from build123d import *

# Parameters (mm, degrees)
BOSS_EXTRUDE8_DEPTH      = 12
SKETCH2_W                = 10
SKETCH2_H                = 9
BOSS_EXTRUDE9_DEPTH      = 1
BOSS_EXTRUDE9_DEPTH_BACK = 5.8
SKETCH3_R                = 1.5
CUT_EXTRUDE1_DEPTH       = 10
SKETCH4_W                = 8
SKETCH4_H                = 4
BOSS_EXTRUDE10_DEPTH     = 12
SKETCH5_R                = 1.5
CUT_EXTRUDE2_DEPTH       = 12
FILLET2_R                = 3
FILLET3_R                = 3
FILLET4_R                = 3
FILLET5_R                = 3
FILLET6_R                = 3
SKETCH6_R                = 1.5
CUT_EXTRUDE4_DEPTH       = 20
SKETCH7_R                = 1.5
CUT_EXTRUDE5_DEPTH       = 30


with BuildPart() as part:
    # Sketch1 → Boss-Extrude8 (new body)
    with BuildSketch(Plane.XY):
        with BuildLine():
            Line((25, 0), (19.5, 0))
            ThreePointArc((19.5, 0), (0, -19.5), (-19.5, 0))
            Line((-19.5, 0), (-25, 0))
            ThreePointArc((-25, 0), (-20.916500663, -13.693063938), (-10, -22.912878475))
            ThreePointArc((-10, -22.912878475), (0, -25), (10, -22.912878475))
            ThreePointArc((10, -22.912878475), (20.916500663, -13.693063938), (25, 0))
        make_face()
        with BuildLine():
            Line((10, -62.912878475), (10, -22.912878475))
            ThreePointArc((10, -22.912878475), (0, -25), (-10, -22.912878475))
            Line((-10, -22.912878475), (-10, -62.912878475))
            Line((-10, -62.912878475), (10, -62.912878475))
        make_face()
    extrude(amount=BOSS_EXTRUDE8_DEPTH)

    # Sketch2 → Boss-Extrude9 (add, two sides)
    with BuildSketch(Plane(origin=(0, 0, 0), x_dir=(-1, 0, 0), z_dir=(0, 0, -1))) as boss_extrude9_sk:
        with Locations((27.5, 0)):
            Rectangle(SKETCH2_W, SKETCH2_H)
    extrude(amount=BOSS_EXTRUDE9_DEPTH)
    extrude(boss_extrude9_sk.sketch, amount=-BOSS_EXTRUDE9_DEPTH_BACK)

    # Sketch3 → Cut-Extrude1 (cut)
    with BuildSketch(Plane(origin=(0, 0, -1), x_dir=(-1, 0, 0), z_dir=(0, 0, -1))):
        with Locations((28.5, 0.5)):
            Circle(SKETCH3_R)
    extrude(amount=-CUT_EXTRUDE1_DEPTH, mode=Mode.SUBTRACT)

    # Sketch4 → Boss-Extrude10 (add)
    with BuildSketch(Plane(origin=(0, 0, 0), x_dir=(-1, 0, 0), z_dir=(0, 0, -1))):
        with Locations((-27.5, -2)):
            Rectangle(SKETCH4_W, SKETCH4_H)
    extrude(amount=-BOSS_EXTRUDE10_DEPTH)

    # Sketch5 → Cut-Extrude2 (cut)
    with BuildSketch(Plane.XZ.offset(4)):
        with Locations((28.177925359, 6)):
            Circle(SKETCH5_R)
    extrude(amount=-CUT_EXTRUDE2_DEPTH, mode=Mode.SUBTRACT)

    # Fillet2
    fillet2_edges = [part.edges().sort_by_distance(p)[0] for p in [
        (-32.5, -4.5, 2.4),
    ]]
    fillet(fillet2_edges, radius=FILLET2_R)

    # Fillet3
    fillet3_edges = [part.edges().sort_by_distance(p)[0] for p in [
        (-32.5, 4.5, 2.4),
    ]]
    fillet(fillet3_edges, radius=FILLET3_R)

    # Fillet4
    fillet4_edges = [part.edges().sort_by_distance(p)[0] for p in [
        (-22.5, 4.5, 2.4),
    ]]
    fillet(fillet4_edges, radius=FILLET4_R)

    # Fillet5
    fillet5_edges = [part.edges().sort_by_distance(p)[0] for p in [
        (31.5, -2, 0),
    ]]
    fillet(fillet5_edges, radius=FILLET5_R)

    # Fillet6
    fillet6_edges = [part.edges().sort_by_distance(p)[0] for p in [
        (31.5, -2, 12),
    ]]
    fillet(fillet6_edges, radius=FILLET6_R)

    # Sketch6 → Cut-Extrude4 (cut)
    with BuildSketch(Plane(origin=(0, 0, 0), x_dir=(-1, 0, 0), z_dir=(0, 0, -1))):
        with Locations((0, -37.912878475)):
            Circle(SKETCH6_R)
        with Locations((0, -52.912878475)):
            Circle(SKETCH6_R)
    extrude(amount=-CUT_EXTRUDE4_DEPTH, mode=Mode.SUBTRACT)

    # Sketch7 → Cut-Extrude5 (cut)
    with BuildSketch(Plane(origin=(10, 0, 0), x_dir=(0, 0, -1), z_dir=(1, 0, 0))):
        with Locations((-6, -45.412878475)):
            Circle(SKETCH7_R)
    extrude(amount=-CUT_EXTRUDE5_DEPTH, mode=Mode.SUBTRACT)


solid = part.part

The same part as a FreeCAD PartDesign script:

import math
import FreeCAD as App
import Part
import Sketcher
Q = App.Units.Quantity


def edges_at(feature, points):
    """Names of the edges that pass closest to the given points."""
    edges = feature.Shape.Edges
    near = lambda p: min(range(len(edges)), key=lambda i: edges[i].distToShape(Part.Vertex(*p))[0])
    return sorted({f"Edge{near(p) + 1}" for p in points})

doc = App.newDocument("Part")
body = doc.addObject("PartDesign::Body", "Body")

sketch1 = doc.addObject("Sketcher::SketchObject", "Sketch")
body.addObject(sketch1)
sketch1.AttachmentSupport = (doc.XY_Plane, [""])
sketch1.MapMode = "FlatFace"
sketch1.addGeometry([
    Part.LineSegment(App.Vector(25, 0, 0), App.Vector(20, 0, 0)),
    Part.ArcOfCircle(Part.Circle(App.Vector(0, 0, 0), App.Vector(0, 0, 1), 20), math.radians(180), math.radians(360)),
    Part.LineSegment(App.Vector(-20, 0, 0), App.Vector(-25, 0, 0)),
    Part.ArcOfCircle(Part.Circle(App.Vector(0, 0, 0), App.Vector(0, 0, 1), 25), math.radians(180), math.radians(246)),
    Part.LineSegment(App.Vector(-10, -23, 0), App.Vector(-10, -63, 0)),
    Part.LineSegment(App.Vector(-10, -63, 0), App.Vector(10, -63, 0)),
    Part.LineSegment(App.Vector(10, -63, 0), App.Vector(10, -23, 0)),
    Part.ArcOfCircle(Part.Circle(App.Vector(0, 0, 0), App.Vector(0, 0, 1), 25), math.radians(-66), math.radians(0)),
], False)
sketch1.addConstraint([
    Sketcher.Constraint("Coincident", 0, 2, 1, 2),
    Sketcher.Constraint("Coincident", 1, 1, 2, 1),
    Sketcher.Constraint("Coincident", 2, 2, 3, 1),
    Sketcher.Constraint("Coincident", 3, 2, 4, 1),
    Sketcher.Constraint("Coincident", 4, 2, 5, 1),
    Sketcher.Constraint("Coincident", 5, 2, 6, 1),
    Sketcher.Constraint("Coincident", 6, 2, 7, 1),
    Sketcher.Constraint("Coincident", 7, 2, 0, 1),
    Sketcher.Constraint("Horizontal", 0),
    Sketcher.Constraint("Horizontal", 2),
    Sketcher.Constraint("Vertical", 4),
    Sketcher.Constraint("Horizontal", 5),
    Sketcher.Constraint("Vertical", 6),
    Sketcher.Constraint("Coincident", 1, 3, -1, 1),
    Sketcher.Constraint("Coincident", 3, 3, -1, 1),
    Sketcher.Constraint("Coincident", 7, 3, -1, 1),
    Sketcher.Constraint("Equal", 3, 7),
    Sketcher.Constraint("PointOnObject", 0, 2, -1),
    Sketcher.Constraint("PointOnObject", 1, 1, -1),
    Sketcher.Constraint("Horizontal", 3, 2, 6, 2),
    Sketcher.Constraint("Radius", 3, Q("25 mm")),
    Sketcher.Constraint("Radius", 1, Q("19.5 mm")),
    Sketcher.Constraint("DistanceX", 5, 1, 5, 2, Q("20 mm")),
    Sketcher.Constraint("DistanceY", 4, 2, 4, 1, Q("40 mm")),
])
pad1 = doc.addObject("PartDesign::Pad", "Pad")
body.addObject(pad1)
pad1.Profile = sketch1
pad1.Length = 12

sketch2 = doc.addObject("Sketcher::SketchObject", "Sketch001")
body.addObject(sketch2)
sketch2.AttachmentSupport = (doc.XY_Plane, [""])
sketch2.MapMode = "FlatFace"
sketch2.addGeometry([
    Part.LineSegment(App.Vector(-22, 4, 0), App.Vector(-22, -4, 0)),
    Part.LineSegment(App.Vector(-22, -4, 0), App.Vector(-32, -4, 0)),
    Part.LineSegment(App.Vector(-32, -4, 0), App.Vector(-32, 4, 0)),
    Part.LineSegment(App.Vector(-32, 4, 0), App.Vector(-22, 4, 0)),
], False)
sketch2.addConstraint([
    Sketcher.Constraint("Coincident", 0, 2, 1, 1),
    Sketcher.Constraint("Coincident", 1, 2, 2, 1),
    Sketcher.Constraint("Coincident", 2, 2, 3, 1),
    Sketcher.Constraint("Coincident", 3, 2, 0, 1),
    Sketcher.Constraint("Vertical", 0),
    Sketcher.Constraint("Horizontal", 1),
    Sketcher.Constraint("Vertical", 2),
    Sketcher.Constraint("Horizontal", 3),
    Sketcher.Constraint("DistanceX", 1, 2, 1, 1, Q("10 mm")),
    Sketcher.Constraint("DistanceY", 0, 2, 0, 1, Q("9 mm")),
    Sketcher.Constraint("DistanceX", 0, 2, -1, 1, Q("22.5 mm")),
    Sketcher.Constraint("DistanceY", 0, 2, -1, 1, Q("4.5 mm")),
])
pad2 = doc.addObject("PartDesign::Pad", "Pad001")
body.addObject(pad2)
pad2.Profile = sketch2
pad2.Type = "TwoLengths"
pad2.Length = 1
pad2.Length2 = 5.8
pad2.Reversed = True

sketch3 = doc.addObject("Sketcher::SketchObject", "Sketch002")
body.addObject(sketch3)
sketch3.AttachmentSupport = (doc.XY_Plane, [""])
sketch3.MapMode = "FlatFace"
sketch3.AttachmentOffset = App.Placement(App.Vector(0, 0, -1), App.Rotation())
sketch3.addGeometry(Part.Circle(App.Vector(-28.5, 0.5, 0), App.Vector(0, 0, 1), 1.5), False)
sketch3.addConstraint([
    Sketcher.Constraint("Diameter", 0, Q("3 mm")),
    Sketcher.Constraint("DistanceX", 0, 3, -1, 1, Q("28.5 mm")),
    Sketcher.Constraint("DistanceY", -1, 1, 0, 3, Q("0.5 mm")),
])
pocket1 = doc.addObject("PartDesign::Pocket", "Pocket")
body.addObject(pocket1)
pocket1.Profile = sketch3
pocket1.Length = 10
pocket1.Reversed = True

sketch4 = doc.addObject("Sketcher::SketchObject", "Sketch003")
body.addObject(sketch4)
sketch4.AttachmentSupport = (doc.XY_Plane, [""])
sketch4.MapMode = "FlatFace"
sketch4.addGeometry([
    Part.LineSegment(App.Vector(31.5, 0, 0), App.Vector(31.5, -4, 0)),
    Part.LineSegment(App.Vector(31.5, -4, 0), App.Vector(23.5, -4, 0)),
    Part.LineSegment(App.Vector(23.5, -4, 0), App.Vector(23.5, 0, 0)),
    Part.LineSegment(App.Vector(23.5, 0, 0), App.Vector(31.5, 0, 0)),
], False)
sketch4.addConstraint([
    Sketcher.Constraint("Coincident", 0, 2, 1, 1),
    Sketcher.Constraint("Coincident", 1, 2, 2, 1),
    Sketcher.Constraint("Coincident", 2, 2, 3, 1),
    Sketcher.Constraint("Coincident", 3, 2, 0, 1),
    Sketcher.Constraint("Vertical", 0),
    Sketcher.Constraint("Horizontal", 1),
    Sketcher.Constraint("Vertical", 2),
    Sketcher.Constraint("Horizontal", 3),
    Sketcher.Constraint("PointOnObject", 2, 2, -1),
    Sketcher.Constraint("DistanceX", 1, 2, 1, 1, Q("8 mm")),
    Sketcher.Constraint("DistanceY", 0, 2, 0, 1, Q("4 mm")),
    Sketcher.Constraint("DistanceX", -1, 1, 0, 2, Q("31.5 mm")),
])
pad3 = doc.addObject("PartDesign::Pad", "Pad002")
body.addObject(pad3)
pad3.Profile = sketch4
pad3.Length = 12

sketch5 = doc.addObject("Sketcher::SketchObject", "Sketch004")
body.addObject(sketch5)
sketch5.AttachmentSupport = (doc.XZ_Plane, [""])
sketch5.MapMode = "FlatFace"
sketch5.AttachmentOffset = App.Placement(App.Vector(0, 0, 4), App.Rotation())
sketch5.addGeometry(Part.Circle(App.Vector(28.2, 6, 0), App.Vector(0, 0, 1), 1.5), False)
sketch5.addConstraint([
    Sketcher.Constraint("Diameter", 0, Q("3 mm")),
    Sketcher.Constraint("DistanceY", -1, 1, 0, 3, Q("6 mm")),
    Sketcher.Constraint("DistanceX", -1, 1, 0, 3, Q("28.177925 mm")),
])
pocket2 = doc.addObject("PartDesign::Pocket", "Pocket001")
body.addObject(pocket2)
pocket2.Profile = sketch5
pocket2.Length = 12
doc.recompute()

fillet = doc.addObject("PartDesign::Fillet", "Fillet")
body.addObject(fillet)
fillet.Base = (pocket2, edges_at(pocket2, [(-32.5, -4.5, 2.4)]))
fillet.Radius = 3
doc.recompute()

fillet2 = doc.addObject("PartDesign::Fillet", "Fillet001")
body.addObject(fillet2)
fillet2.Base = (fillet, edges_at(fillet, [(-32.5, 4.5, 2.4)]))
fillet2.Radius = 3
doc.recompute()

fillet3 = doc.addObject("PartDesign::Fillet", "Fillet002")
body.addObject(fillet3)
fillet3.Base = (fillet2, edges_at(fillet2, [(-22.5, 4.5, 2.4)]))
fillet3.Radius = 3
doc.recompute()

fillet4 = doc.addObject("PartDesign::Fillet", "Fillet003")
body.addObject(fillet4)
fillet4.Base = (fillet3, edges_at(fillet3, [(31.5, -2, 0)]))
fillet4.Radius = 3
doc.recompute()

fillet5 = doc.addObject("PartDesign::Fillet", "Fillet004")
body.addObject(fillet5)
fillet5.Base = (fillet4, edges_at(fillet4, [(31.5, -2, 12)]))
fillet5.Radius = 3

sketch6 = doc.addObject("Sketcher::SketchObject", "Sketch005")
body.addObject(sketch6)
sketch6.AttachmentSupport = (doc.XY_Plane, [""])
sketch6.MapMode = "FlatFace"
sketch6.addGeometry([
    Part.Circle(App.Vector(0, -37.9, 0), App.Vector(0, 0, 1), 1.5),
    Part.Circle(App.Vector(0, -52.9, 0), App.Vector(0, 0, 1), 1.5),
], False)
sketch6.addConstraint([
    Sketcher.Constraint("Equal", 0, 1),
    Sketcher.Constraint("PointOnObject", 0, 3, -2),
    Sketcher.Constraint("PointOnObject", 1, 3, -2),
    Sketcher.Constraint("Diameter", 0, Q("3 mm")),
    Sketcher.Constraint("DistanceY", 1, 3, 0, 3, Q("15 mm")),
    Sketcher.Constraint("DistanceY", 0, 3, -1, 1, Q("37.912878 mm")),
])
pocket3 = doc.addObject("PartDesign::Pocket", "Pocket002")
body.addObject(pocket3)
pocket3.Profile = sketch6
pocket3.Length = 20
pocket3.Reversed = True

sketch7 = doc.addObject("Sketcher::SketchObject", "Sketch006")
body.addObject(sketch7)
sketch7.AttachmentSupport = (doc.YZ_Plane, [""])
sketch7.MapMode = "FlatFace"
sketch7.AttachmentOffset = App.Placement(App.Vector(0, 0, 10), App.Rotation())
sketch7.addGeometry(Part.Circle(App.Vector(-45.4, 6, 0), App.Vector(0, 0, 1), 1.5), False)
sketch7.addConstraint([
    Sketcher.Constraint("Diameter", 0, Q("3 mm")),
    Sketcher.Constraint("DistanceY", -1, 1, 0, 3, Q("6 mm")),
    Sketcher.Constraint("DistanceX", 0, 3, -1, 1, Q("45.412878 mm")),
])
pocket4 = doc.addObject("PartDesign::Pocket", "Pocket003")
body.addObject(pocket4)
pocket4.Profile = sketch7
pocket4.Length = 30

doc.recompute()
